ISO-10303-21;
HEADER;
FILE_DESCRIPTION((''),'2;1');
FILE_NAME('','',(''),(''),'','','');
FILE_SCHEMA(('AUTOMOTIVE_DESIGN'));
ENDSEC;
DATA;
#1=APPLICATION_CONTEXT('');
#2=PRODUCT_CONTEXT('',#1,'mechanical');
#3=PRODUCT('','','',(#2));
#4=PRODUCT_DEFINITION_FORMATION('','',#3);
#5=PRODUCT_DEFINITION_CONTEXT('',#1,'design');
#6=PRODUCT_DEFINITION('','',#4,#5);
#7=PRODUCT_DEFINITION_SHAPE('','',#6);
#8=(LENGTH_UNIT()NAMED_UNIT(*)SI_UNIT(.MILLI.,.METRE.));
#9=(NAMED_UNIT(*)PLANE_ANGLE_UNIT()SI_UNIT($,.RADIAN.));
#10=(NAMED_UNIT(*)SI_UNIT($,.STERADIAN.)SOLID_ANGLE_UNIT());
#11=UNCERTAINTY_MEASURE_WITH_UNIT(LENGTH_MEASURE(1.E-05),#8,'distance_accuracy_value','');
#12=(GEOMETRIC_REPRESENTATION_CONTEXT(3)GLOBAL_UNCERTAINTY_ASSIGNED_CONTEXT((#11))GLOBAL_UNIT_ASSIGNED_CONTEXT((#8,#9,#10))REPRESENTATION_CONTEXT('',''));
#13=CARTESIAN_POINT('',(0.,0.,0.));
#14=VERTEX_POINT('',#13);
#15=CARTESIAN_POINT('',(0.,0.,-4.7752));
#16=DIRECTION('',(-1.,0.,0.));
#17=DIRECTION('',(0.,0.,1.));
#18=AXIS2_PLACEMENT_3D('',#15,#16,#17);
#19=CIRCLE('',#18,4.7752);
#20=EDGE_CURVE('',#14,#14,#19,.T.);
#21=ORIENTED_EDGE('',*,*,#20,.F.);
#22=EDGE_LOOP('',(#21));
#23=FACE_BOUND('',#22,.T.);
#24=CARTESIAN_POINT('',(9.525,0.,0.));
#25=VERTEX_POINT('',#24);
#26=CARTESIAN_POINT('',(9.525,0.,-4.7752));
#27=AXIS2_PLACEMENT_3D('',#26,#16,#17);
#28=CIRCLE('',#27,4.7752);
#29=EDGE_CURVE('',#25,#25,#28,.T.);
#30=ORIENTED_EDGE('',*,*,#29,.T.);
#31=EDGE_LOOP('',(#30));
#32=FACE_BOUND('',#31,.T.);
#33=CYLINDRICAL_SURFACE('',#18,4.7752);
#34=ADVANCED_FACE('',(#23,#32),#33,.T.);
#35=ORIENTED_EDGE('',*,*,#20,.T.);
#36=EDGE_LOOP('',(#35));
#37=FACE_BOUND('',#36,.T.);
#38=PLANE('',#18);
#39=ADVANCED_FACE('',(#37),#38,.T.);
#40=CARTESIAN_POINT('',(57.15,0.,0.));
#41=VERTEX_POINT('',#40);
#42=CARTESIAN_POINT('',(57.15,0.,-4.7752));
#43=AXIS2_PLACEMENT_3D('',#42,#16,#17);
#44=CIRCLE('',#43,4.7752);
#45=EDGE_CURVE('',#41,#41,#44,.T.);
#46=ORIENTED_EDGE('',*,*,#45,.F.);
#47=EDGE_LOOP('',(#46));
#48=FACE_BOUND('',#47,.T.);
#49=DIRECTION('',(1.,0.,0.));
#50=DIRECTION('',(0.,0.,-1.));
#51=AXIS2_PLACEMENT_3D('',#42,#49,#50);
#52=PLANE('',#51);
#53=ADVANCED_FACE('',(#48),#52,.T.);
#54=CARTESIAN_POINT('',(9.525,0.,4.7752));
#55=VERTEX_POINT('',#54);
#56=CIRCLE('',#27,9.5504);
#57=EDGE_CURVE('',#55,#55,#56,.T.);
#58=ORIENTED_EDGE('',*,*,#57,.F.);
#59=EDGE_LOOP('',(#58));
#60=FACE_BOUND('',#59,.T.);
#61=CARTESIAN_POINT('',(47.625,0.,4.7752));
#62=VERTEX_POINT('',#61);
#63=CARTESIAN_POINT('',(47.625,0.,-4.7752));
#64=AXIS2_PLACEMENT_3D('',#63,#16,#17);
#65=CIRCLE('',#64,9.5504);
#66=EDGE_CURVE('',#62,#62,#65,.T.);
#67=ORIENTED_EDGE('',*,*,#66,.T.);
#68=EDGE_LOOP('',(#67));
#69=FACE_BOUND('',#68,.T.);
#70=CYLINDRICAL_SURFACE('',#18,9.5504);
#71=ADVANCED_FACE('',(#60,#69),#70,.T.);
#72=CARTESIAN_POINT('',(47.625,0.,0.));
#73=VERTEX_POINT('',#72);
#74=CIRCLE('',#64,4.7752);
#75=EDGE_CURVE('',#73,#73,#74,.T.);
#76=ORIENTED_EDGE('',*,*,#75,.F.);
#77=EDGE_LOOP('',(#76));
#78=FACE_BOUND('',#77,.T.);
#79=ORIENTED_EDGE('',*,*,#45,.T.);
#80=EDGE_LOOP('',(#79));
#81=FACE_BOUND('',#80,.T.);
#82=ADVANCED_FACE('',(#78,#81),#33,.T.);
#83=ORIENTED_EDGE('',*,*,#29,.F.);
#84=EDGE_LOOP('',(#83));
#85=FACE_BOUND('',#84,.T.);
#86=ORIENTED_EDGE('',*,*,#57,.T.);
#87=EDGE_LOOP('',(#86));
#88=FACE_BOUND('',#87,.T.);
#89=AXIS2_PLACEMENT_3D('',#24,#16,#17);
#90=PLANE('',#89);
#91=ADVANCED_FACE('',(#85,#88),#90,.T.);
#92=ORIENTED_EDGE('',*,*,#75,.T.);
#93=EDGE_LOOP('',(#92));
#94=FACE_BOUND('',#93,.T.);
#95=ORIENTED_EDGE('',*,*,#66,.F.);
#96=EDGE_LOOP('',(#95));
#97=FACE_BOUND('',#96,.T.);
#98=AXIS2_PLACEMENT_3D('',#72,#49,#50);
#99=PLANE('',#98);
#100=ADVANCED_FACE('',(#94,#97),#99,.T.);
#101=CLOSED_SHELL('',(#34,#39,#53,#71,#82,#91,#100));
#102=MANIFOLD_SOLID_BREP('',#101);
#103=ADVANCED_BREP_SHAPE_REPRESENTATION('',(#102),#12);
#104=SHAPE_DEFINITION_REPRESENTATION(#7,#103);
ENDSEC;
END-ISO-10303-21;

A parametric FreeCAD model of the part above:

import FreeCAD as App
import Part
import Sketcher
Q = App.Units.Quantity

doc = App.newDocument("Part")
body = doc.addObject("PartDesign::Body", "Body")

sketch1 = body.newObject("Sketcher::SketchObject", "Sketch")
sketch1.AttachmentSupport = (doc.getObject("XZ_Plane"), [""])
sketch1.MapMode = "FlatFace"
sketch1.addGeometry([
    Part.LineSegment(App.Vector(0, -4.8, 0), App.Vector(0, 0, 0)),
    Part.LineSegment(App.Vector(0, 0, 0), App.Vector(9.5, 0, 0)),
    Part.LineSegment(App.Vector(9.5, 0, 0), App.Vector(9.5, 4.8, 0)),
    Part.LineSegment(App.Vector(9.5, 4.8, 0), App.Vector(47.6, 4.8, 0)),
    Part.LineSegment(App.Vector(47.6, 4.8, 0), App.Vector(47.6, 0, 0)),
    Part.LineSegment(App.Vector(47.6, 0, 0), App.Vector(57.1, 0, 0)),
    Part.LineSegment(App.Vector(57.1, 0, 0), App.Vector(57.1, -4.8, 0)),
    Part.LineSegment(App.Vector(57.1, -4.8, 0), App.Vector(0, -4.8, 0)),
], False)
sketch1.addGeometry(Part.LineSegment(App.Vector(0, -4.8, 0), App.Vector(57.1, -4.8, 0)), True)
sketch1.addConstraint([
    Sketcher.Constraint("Coincident", 0, 2, 1, 1),
    Sketcher.Constraint("Coincident", 1, 2, 2, 1),
    Sketcher.Constraint("Coincident", 2, 2, 3, 1),
    Sketcher.Constraint("Coincident", 3, 2, 4, 1),
    Sketcher.Constraint("Coincident", 4, 2, 5, 1),
    Sketcher.Constraint("Coincident", 5, 2, 6, 1),
    Sketcher.Constraint("Coincident", 6, 2, 7, 1),
    Sketcher.Constraint("Coincident", 7, 2, 0, 1),
    Sketcher.Constraint("Vertical", 0),
    Sketcher.Constraint("Horizontal", 1),
    Sketcher.Constraint("Vertical", 2),
    Sketcher.Constraint("Horizontal", 3),
    Sketcher.Constraint("Vertical", 4),
    Sketcher.Constraint("Horizontal", 5),
    Sketcher.Constraint("Vertical", 6),
    Sketcher.Constraint("Horizontal", 7),
    Sketcher.Constraint("Horizontal", 8),
    Sketcher.Constraint("Coincident", 0, 2, -1, 1),
    Sketcher.Constraint("Coincident", 8, 1, 7, 2),
    Sketcher.Constraint("PointOnObject", 4, 2, -1),
    Sketcher.Constraint("Vertical", 5, 2, 8, 2),
    Sketcher.Constraint("Equal", 1, 5),
    Sketcher.Constraint("Equal", 0, 2),
    Sketcher.Constraint("DistanceX", 3, 1, 3, 2, Q("1.5 in")),
    Sketcher.Constraint("DistanceX", 7, 2, 7, 1, Q("2.25 in")),
    Sketcher.Constraint("DistanceY", 0, 1, 0, 2, Q("0.188 in")),
])
revolution = body.newObject("PartDesign::Revolution", "Revolution")
revolution.Profile = sketch1
revolution.ReferenceAxis = (sketch1, ["Axis0"])
revolution.Angle = 360

doc.recompute()
